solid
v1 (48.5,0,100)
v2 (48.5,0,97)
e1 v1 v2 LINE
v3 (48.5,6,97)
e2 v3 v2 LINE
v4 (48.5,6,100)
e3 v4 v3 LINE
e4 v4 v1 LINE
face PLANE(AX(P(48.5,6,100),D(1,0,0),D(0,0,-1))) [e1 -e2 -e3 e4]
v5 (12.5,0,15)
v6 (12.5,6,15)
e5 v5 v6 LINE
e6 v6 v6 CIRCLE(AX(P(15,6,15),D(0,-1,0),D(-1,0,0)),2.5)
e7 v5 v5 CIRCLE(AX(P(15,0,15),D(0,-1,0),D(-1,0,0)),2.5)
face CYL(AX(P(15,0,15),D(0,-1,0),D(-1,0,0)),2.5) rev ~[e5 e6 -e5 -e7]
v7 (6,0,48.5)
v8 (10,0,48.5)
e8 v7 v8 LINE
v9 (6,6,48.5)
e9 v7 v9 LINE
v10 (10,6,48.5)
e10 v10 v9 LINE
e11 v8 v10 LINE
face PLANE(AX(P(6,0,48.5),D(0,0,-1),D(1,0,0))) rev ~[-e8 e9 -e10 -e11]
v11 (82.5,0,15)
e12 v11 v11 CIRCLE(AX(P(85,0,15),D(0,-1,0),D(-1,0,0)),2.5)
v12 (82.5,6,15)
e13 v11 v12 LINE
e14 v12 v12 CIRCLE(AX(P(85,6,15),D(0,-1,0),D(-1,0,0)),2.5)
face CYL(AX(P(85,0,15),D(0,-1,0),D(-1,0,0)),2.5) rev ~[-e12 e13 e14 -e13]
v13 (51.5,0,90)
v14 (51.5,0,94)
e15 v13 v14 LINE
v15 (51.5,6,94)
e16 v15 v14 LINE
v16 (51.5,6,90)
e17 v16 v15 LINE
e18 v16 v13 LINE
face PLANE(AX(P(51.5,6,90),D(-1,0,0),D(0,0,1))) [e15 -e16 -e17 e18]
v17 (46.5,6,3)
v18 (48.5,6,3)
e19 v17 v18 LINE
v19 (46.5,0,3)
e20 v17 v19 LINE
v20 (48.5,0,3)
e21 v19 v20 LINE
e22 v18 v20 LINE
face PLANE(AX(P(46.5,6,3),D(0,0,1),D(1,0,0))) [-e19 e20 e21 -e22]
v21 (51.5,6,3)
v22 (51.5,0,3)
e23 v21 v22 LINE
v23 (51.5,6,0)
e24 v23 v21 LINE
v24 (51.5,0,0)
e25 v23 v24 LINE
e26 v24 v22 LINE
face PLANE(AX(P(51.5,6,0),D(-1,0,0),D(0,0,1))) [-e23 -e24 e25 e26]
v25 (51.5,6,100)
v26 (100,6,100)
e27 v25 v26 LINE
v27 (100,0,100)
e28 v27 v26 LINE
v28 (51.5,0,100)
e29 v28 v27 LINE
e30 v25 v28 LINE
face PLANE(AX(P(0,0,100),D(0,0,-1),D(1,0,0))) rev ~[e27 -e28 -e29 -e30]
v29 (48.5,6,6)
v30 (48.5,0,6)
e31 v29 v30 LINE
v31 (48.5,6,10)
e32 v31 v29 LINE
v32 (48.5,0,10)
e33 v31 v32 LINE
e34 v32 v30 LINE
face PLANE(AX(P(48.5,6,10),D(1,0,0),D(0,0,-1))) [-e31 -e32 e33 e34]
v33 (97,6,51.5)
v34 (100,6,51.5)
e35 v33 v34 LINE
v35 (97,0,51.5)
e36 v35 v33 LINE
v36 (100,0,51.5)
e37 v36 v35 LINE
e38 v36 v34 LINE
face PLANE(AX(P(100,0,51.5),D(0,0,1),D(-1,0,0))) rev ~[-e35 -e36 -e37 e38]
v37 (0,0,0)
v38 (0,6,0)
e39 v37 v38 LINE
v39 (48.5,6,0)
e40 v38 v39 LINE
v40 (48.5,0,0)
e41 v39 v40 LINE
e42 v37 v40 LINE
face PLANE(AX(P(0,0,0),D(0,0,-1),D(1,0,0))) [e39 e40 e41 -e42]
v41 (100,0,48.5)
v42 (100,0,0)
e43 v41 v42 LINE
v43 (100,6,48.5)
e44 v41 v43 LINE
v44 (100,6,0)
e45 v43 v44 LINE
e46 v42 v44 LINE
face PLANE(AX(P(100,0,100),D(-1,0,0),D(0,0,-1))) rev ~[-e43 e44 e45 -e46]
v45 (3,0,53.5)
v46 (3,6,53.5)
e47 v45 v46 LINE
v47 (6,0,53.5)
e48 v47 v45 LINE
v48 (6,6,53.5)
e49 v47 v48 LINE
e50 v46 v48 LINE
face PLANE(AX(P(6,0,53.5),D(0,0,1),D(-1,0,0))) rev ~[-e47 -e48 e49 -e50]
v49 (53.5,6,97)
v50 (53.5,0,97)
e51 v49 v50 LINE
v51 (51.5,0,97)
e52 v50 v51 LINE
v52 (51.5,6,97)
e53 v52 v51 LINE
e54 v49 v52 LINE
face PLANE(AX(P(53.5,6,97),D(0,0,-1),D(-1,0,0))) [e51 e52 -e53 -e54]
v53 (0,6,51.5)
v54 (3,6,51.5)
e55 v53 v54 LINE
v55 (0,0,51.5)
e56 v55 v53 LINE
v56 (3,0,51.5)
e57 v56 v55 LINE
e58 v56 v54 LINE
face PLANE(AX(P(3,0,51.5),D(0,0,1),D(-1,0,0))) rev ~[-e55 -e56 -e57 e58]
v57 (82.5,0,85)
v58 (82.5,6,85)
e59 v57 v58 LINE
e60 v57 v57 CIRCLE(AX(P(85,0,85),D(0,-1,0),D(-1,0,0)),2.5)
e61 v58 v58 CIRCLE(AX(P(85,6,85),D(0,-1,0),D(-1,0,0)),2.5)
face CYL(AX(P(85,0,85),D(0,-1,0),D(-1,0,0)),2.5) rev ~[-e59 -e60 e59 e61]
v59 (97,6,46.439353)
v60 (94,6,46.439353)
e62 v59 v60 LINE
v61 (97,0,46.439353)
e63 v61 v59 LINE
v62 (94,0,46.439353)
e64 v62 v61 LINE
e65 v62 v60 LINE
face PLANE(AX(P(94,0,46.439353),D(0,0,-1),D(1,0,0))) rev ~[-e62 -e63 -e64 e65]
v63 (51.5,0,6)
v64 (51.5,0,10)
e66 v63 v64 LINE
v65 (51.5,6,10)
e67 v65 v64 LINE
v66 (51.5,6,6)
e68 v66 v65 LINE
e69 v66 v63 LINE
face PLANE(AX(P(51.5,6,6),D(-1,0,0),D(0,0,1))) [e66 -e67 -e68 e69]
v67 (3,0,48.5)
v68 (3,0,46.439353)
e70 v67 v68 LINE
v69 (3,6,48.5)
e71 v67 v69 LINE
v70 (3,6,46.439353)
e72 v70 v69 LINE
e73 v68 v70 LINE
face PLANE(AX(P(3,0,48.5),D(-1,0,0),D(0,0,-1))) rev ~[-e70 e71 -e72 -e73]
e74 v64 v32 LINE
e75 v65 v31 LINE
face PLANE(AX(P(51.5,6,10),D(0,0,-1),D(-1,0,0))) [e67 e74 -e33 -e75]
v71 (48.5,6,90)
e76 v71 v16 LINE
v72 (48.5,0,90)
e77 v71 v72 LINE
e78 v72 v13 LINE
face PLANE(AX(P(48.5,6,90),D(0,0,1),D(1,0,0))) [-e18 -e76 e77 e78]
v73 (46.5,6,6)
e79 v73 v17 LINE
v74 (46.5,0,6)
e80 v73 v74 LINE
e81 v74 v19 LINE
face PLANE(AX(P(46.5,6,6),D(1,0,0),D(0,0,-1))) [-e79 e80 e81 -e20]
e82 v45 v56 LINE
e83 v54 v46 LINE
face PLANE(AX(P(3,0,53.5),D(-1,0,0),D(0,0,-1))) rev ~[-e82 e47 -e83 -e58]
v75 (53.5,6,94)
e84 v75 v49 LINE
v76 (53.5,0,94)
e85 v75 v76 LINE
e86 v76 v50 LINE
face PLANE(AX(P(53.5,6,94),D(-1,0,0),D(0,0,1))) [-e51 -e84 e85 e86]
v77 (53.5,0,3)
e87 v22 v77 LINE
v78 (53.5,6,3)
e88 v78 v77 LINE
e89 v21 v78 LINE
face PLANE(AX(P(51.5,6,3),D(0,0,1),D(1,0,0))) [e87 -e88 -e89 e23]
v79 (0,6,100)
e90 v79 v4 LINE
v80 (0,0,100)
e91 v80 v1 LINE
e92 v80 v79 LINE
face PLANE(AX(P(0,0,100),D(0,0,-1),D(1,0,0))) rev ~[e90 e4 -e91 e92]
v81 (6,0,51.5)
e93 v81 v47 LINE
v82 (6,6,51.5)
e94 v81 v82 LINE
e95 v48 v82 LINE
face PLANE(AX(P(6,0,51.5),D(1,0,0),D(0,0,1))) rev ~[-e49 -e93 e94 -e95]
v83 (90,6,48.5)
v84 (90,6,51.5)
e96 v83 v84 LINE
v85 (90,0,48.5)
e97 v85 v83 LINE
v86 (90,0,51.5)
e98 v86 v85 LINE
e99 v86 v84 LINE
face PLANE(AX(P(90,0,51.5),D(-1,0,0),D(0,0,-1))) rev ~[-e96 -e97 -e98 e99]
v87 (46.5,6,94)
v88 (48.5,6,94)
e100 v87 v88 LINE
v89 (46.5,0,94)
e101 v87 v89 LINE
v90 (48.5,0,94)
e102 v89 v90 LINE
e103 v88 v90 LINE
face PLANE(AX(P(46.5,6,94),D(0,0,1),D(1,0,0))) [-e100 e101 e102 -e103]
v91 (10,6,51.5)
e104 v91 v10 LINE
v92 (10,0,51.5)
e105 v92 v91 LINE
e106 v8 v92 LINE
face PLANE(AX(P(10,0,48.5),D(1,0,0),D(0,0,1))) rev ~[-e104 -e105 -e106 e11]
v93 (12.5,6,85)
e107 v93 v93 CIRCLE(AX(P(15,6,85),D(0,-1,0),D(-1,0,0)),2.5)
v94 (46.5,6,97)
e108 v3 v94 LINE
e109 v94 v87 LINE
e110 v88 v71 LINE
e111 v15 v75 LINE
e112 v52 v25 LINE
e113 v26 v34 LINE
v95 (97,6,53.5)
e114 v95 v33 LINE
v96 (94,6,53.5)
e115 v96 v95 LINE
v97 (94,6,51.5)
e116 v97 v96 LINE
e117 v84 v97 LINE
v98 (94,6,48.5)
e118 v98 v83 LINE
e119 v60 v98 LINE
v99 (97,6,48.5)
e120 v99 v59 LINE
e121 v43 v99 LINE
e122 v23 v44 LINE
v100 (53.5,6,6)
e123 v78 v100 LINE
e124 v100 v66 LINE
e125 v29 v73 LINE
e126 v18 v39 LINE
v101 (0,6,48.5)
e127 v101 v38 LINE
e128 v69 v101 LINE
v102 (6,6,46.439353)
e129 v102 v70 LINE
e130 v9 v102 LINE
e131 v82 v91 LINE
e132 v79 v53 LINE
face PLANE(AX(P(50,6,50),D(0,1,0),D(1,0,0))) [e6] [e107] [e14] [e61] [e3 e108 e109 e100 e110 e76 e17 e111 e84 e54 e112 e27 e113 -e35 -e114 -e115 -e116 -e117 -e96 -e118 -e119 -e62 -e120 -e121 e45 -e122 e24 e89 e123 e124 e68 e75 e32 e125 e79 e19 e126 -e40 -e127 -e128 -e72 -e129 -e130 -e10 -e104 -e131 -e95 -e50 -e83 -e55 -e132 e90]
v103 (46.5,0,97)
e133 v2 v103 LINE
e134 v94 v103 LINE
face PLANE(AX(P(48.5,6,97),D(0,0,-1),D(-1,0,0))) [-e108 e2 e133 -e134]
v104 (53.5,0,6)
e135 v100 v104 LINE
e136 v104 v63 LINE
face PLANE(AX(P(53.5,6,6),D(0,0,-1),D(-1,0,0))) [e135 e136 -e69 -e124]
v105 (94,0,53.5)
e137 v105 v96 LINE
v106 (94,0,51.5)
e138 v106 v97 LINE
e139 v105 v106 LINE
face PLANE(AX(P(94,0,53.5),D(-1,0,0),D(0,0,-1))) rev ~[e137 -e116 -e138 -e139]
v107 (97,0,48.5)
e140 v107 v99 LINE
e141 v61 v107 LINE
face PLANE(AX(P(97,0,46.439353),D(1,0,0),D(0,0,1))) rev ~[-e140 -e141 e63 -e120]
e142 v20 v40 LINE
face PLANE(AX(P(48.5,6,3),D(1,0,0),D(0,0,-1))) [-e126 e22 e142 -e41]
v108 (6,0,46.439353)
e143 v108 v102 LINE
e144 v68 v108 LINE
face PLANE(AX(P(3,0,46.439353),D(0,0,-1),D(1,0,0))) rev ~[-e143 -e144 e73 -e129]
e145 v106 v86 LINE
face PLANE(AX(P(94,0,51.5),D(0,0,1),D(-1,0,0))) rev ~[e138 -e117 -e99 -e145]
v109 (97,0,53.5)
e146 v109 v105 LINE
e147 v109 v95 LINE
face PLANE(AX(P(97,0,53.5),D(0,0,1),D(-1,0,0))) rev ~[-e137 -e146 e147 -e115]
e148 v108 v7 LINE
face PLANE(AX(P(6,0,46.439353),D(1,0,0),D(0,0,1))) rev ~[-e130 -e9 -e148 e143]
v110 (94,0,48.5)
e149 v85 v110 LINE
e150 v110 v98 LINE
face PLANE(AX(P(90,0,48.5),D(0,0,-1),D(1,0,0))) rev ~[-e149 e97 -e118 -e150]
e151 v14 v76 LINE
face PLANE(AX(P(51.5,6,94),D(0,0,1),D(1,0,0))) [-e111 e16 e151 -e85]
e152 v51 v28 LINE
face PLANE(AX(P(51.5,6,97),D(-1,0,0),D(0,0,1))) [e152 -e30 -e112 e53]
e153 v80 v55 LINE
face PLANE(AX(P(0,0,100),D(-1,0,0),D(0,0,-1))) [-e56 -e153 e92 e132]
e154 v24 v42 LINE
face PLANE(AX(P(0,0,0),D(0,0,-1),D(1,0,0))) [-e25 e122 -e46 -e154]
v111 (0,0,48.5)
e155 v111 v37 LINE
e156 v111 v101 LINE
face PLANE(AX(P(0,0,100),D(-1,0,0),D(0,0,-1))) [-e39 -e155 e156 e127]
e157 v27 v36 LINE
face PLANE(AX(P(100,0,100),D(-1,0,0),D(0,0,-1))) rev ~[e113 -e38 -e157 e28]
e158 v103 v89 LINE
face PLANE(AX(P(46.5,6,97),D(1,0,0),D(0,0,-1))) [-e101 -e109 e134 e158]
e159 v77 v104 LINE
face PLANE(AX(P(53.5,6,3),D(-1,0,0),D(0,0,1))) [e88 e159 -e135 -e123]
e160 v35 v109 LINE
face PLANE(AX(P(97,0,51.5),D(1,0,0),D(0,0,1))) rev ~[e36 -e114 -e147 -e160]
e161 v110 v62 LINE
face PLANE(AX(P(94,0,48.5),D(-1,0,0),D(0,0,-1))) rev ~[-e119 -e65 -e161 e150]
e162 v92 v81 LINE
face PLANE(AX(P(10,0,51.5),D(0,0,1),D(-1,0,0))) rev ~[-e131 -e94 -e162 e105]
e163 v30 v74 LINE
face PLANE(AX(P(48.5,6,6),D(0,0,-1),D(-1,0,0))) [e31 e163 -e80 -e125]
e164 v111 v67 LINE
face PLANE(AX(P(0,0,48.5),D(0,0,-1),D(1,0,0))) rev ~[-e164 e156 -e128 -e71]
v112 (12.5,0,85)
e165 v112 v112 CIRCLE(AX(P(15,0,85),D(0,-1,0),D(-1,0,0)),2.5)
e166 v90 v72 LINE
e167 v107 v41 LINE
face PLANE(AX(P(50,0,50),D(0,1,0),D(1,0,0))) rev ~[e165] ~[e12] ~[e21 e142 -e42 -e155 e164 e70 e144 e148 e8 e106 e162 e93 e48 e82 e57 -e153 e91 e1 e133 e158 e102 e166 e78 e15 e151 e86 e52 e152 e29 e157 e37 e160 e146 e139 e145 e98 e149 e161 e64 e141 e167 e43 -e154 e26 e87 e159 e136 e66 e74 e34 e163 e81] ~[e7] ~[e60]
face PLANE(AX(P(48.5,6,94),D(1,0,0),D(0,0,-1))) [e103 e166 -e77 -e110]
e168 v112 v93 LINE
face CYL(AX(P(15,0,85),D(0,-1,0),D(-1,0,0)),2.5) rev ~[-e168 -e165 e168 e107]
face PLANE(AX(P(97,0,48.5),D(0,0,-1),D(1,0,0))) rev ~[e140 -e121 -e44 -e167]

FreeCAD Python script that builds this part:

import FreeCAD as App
import Part
import Sketcher

V = App.Vector
Q = App.Units.Quantity


def add_polygon(sketch, points):
    """Adds a closed chain of lines whose ends are joined by coincident constraints."""
    first, n = sketch.GeometryCount, len(points)
    for a, b in zip(points, points[1:] + points[:1]):
        sketch.addGeometry(Part.LineSegment(App.Vector(*a, 0), App.Vector(*b, 0)), False)
    for i in range(n):
        sketch.addConstraint(Sketcher.Constraint("Coincident", first + i, 2, first + (i + 1) % n, 1))

doc = App.newDocument("Part")
body = doc.addObject("PartDesign::Body", "Body")

sketch1 = body.newObject("Sketcher::SketchObject", "Sketch")
sketch1.AttachmentSupport = (doc.getObject("XZ_Plane"), [""])
sketch1.MapMode = "FlatFace"
add_polygon(sketch1, [(0, 0), (0, 100), (100, 100), (100, 0)])
sketch1.addConstraint([
    Sketcher.Constraint("Vertical", 0),
    Sketcher.Constraint("Horizontal", 1),
    Sketcher.Constraint("Vertical", 2),
    Sketcher.Constraint("Horizontal", 3),
    Sketcher.Constraint("Coincident", 3, 2, -1, 1),
    Sketcher.Constraint("Equal", 3, 0),
    Sketcher.Constraint("DistanceX", 1, 1, 1, 2, Q("100 mm")),
])
pad1 = body.newObject("PartDesign::Pad", "Pad")
pad1.Profile = sketch1
pad1.Length = 6
pad1.Reversed = True

sketch2 = body.newObject("Sketcher::SketchObject", "Sketch001")
sketch2.AttachmentSupport = (doc.getObject("XZ_Plane"), [""])
sketch2.MapMode = "FlatFace"
sketch2.AttachmentOffset = App.Placement(V(0, 0, -6), App.Rotation())
add_polygon(sketch2, [(51.5, 0), (48.5, 0), (48.5, 3), (46.5, 3), (46.5, 6), (48.5, 6), (48.5, 10), (51.5, 10), (51.5, 6), (53.5, 6), (53.5, 3), (51.5, 3)])
add_polygon(sketch2, [(48.5, 97), (48.5, 100), (51.5, 100), (51.5, 97), (53.5, 97), (53.5, 94), (51.5, 94), (51.5, 90), (48.5, 90), (48.5, 94), (46.5, 94), (46.5, 97)])
sketch2.addConstraint([
    Sketcher.Constraint("Horizontal", 0),
    Sketcher.Constraint("Vertical", 1),
    Sketcher.Constraint("Horizontal", 2),
    Sketcher.Constraint("Vertical", 3),
    Sketcher.Constraint("Horizontal", 4),
    Sketcher.Constraint("Vertical", 5),
    Sketcher.Constraint("Horizontal", 6),
    Sketcher.Constraint("Vertical", 7),
    Sketcher.Constraint("Horizontal", 8),
    Sketcher.Constraint("Vertical", 9),
    Sketcher.Constraint("Horizontal", 10),
    Sketcher.Constraint("Vertical", 11),
    Sketcher.Constraint("Vertical", 12),
    Sketcher.Constraint("Horizontal", 13),
    Sketcher.Constraint("Vertical", 14),
    Sketcher.Constraint("Horizontal", 15),
    Sketcher.Constraint("Vertical", 16),
    Sketcher.Constraint("Horizontal", 17),
    Sketcher.Constraint("Vertical", 18),
    Sketcher.Constraint("Horizontal", 19),
    Sketcher.Constraint("Vertical", 20),
    Sketcher.Constraint("Horizontal", 21),
    Sketcher.Constraint("Vertical", 22),
    Sketcher.Constraint("Horizontal", 23),
    Sketcher.Constraint("PointOnObject", 0, 2, -1),
    Sketcher.Constraint("Horizontal", 4, 2, 7, 2),
    Sketcher.Constraint("Horizontal", 2, 2, 9, 2),
    Sketcher.Constraint("Horizontal", 17, 2, 20, 2),
    Sketcher.Constraint("Horizontal", 15, 2, 22, 2),
    Sketcher.Constraint("Vertical", 1, 2, 4, 2),
    Sketcher.Constraint("Vertical", 7, 2, 10, 2),
    Sketcher.Constraint("Vertical", 5, 2, 12, 2),
    Sketcher.Constraint("Vertical", 11, 2, 13, 2),
    Sketcher.Constraint("Vertical", 9, 2, 15, 2),
    Sketcher.Constraint("Vertical", 14, 2, 17, 2),
    Sketcher.Constraint("Vertical", 12, 2, 19, 2),
    Sketcher.Constraint("Vertical", 3, 2, 21, 2),
    Sketcher.Constraint("Equal", 4, 8),
    Sketcher.Constraint("Equal", 19, 1),
    Sketcher.Constraint("Equal", 1, 3),
    Sketcher.Constraint("Equal", 11, 12),
    Sketcher.Constraint("Equal", 14, 16),
    Sketcher.Constraint("Equal", 7, 18),
    Sketcher.Constraint("DistanceX", 0, 2, 0, 1, Q("3 mm")),
    Sketcher.Constraint("DistanceX", 2, 2, 2, 1, Q("2 mm")),
    Sketcher.Constraint("DistanceY", 5, 1, 5, 2, Q("4 mm")),
    Sketcher.Constraint("DistanceY", -1, 1, 12, 2, Q("100 mm")),
    Sketcher.Constraint("DistanceX", -1, 1, 0, 2, Q("48.5 mm")),
])
pocket1 = body.newObject("PartDesign::Pocket", "Pocket")
pocket1.Profile = sketch2
pocket1.Type = "ThroughAll"
pocket1.Reversed = True

sketch3 = body.newObject("Sketcher::SketchObject", "Sketch002")
sketch3.AttachmentSupport = (doc.getObject("XZ_Plane"), [""])
sketch3.MapMode = "FlatFace"
sketch3.addGeometry([
    Part.Circle(V(15, 85, 0), V(0, 0, 1), 2.5),
    Part.Circle(V(85, 85, 0), V(0, 0, 1), 2.5),
    Part.Circle(V(85, 15, 0), V(0, 0, 1), 2.5),
    Part.Circle(V(15, 15, 0), V(0, 0, 1), 2.5),
], False)
sketch3.addConstraint([
    Sketcher.Constraint("Equal", 0, 1),
    Sketcher.Constraint("Equal", 1, 2),
    Sketcher.Constraint("Equal", 2, 3),
    Sketcher.Constraint("Horizontal", 0, 3, 1, 3),
    Sketcher.Constraint("Horizontal", 2, 3, 3, 3),
    Sketcher.Constraint("Vertical", 1, 3, 2, 3),
    Sketcher.Constraint("Vertical", 0, 3, 3, 3),
    Sketcher.Constraint("Diameter", 0, Q("5 mm")),
    Sketcher.Constraint("DistanceX", -1, 1, 0, 3, Q("15 mm")),
    Sketcher.Constraint("DistanceY", -1, 1, 0, 3, Q("85 mm")),
    Sketcher.Constraint("DistanceX", -1, 1, 1, 3, Q("85 mm")),
    Sketcher.Constraint("DistanceY", -1, 1, 2, 3, Q("15 mm")),
])
pocket2 = body.newObject("PartDesign::Pocket", "Pocket001")
pocket2.Profile = sketch3
pocket2.Type = "ThroughAll"

sketch4 = body.newObject("Sketcher::SketchObject", "Sketch003")
sketch4.AttachmentSupport = (doc.getObject("XZ_Plane"), [""])
sketch4.MapMode = "FlatFace"
add_polygon(sketch4, [(0, 48.5), (3, 48.5), (3, 46.4), (6, 46.4), (6, 48.5), (10, 48.5), (10, 51.5), (6, 51.5), (6, 53.5), (3, 53.5), (3, 51.5), (0, 51.5)])
add_polygon(sketch4, [(100, 48.5), (100, 51.5), (97, 51.5), (97, 53.5), (94, 53.5), (94, 51.5), (90, 51.5), (90, 48.5), (94, 48.5), (94, 46.4), (97, 46.4), (97, 48.5)])
sketch4.addConstraint([
    Sketcher.Constraint("Horizontal", 0),
    Sketcher.Constraint("Vertical", 1),
    Sketcher.Constraint("Horizontal", 2),
    Sketcher.Constraint("Vertical", 3),
    Sketcher.Constraint("Horizontal", 4),
    Sketcher.Constraint("Vertical", 5),
    Sketcher.Constraint("Horizontal", 6),
    Sketcher.Constraint("Vertical", 7),
    Sketcher.Constraint("Horizontal", 8),
    Sketcher.Constraint("Vertical", 9),
    Sketcher.Constraint("Horizontal", 10),
    Sketcher.Constraint("Vertical", 11),
    Sketcher.Constraint("Vertical", 12),
    Sketcher.Constraint("Horizontal", 13),
    Sketcher.Constraint("Vertical", 14),
    Sketcher.Constraint("Horizontal", 15),
    Sketcher.Constraint("Vertical", 16),
    Sketcher.Constraint("Horizontal", 17),
    Sketcher.Constraint("Vertical", 18),
    Sketcher.Constraint("Horizontal", 19),
    Sketcher.Constraint("Vertical", 20),
    Sketcher.Constraint("Horizontal", 21),
    Sketcher.Constraint("Vertical", 22),
    Sketcher.Constraint("Horizontal", 23),
    Sketcher.Constraint("PointOnObject", 10, 2, -2),
    Sketcher.Constraint("Horizontal", 0, 2, 3, 2),
    Sketcher.Constraint("Horizontal", 6, 2, 9, 2),
    Sketcher.Constraint("Horizontal", 10, 2, 12, 2),
    Sketcher.Constraint("Horizontal", 8, 2, 14, 2),
    Sketcher.Constraint("Horizontal", 13, 2, 16, 2),
    Sketcher.Constraint("Horizontal", 11, 2, 18, 2),
    Sketcher.Constraint("Horizontal", 2, 2, 20, 2),
    Sketcher.Constraint("Horizontal", 19, 2, 22, 2),
    Sketcher.Constraint("Vertical", 3, 2, 6, 2),
    Sketcher.Constraint("Vertical", 1, 2, 8, 2),
    Sketcher.Constraint("Vertical", 16, 2, 19, 2),
    Sketcher.Constraint("Vertical", 14, 2, 21, 2),
    Sketcher.Constraint("Equal", 0, 2),
    Sketcher.Constraint("Equal", 10, 13),
    Sketcher.Constraint("Equal", 13, 15),
    Sketcher.Constraint("Equal", 6, 17),
    Sketcher.Constraint("Equal", 23, 5),
    Sketcher.Constraint("DistanceX", 0, 1, 0, 2, Q("3 mm")),
    Sketcher.Constraint("DistanceX", 4, 1, 4, 2, Q("4 mm")),
    Sketcher.Constraint("DistanceY", 7, 1, 7, 2, Q("2 mm")),
    Sketcher.Constraint("DistanceX", -1, 1, 12, 2, Q("100 mm")),
    Sketcher.Constraint("DistanceY", -1, 1, 0, 2, Q("48.5 mm")),
    Sketcher.Constraint("DistanceY", 1, 2, 1, 1, Q("2.060647 mm")),
])
pocket3 = body.newObject("PartDesign::Pocket", "Pocket002")
pocket3.Profile = sketch4
pocket3.Length = 10

doc.recompute()
